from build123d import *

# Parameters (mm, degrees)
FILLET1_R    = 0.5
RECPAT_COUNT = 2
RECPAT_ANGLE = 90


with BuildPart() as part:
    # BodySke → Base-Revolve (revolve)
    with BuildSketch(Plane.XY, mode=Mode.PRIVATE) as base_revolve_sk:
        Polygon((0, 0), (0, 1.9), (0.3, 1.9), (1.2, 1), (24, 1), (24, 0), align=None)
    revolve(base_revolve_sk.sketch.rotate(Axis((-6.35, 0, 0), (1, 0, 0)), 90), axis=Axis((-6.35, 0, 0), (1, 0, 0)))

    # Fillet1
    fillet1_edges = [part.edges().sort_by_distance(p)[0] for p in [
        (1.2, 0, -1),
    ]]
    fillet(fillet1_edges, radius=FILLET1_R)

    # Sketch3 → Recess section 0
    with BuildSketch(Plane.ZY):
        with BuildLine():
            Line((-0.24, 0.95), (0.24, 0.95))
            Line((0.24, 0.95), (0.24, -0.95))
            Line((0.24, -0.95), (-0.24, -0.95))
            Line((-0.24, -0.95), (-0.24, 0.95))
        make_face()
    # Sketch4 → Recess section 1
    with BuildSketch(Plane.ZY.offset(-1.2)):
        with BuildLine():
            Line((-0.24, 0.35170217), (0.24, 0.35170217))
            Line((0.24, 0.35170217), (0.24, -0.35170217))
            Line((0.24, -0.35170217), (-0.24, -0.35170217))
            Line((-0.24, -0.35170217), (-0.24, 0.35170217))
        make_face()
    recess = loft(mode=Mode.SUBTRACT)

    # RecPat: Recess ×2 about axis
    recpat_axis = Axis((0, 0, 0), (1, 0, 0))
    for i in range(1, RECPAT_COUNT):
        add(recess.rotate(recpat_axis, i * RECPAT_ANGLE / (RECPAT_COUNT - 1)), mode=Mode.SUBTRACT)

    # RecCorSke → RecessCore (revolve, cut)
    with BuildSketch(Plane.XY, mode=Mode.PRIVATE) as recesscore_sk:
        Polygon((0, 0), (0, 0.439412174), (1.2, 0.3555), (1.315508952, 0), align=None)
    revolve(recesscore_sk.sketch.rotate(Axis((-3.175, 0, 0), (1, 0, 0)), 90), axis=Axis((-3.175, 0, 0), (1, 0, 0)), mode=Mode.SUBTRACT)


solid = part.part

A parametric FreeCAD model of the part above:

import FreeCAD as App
import Part
import Sketcher
Q = App.Units.Quantity


def edges_at(feature, points):
    """Names of the edges that pass closest to the given points."""
    edges = feature.Shape.Edges
    near = lambda p: min(range(len(edges)), key=lambda i: edges[i].distToShape(Part.Vertex(*p))[0])
    return sorted({f"Edge{near(p) + 1}" for p in points})

doc = App.newDocument("Part")
body = doc.addObject("PartDesign::Body", "Body")

# Sketch on XY plane
sketch1 = doc.addObject("Sketcher::SketchObject", "Sketch")
body.addObject(sketch1)
sketch1.AttachmentSupport = (doc.XY_Plane, [""])
sketch1.MapMode = "FlatFace"
sketch1.addGeometry([
    Part.LineSegment(App.Vector(0, 1.9, 0), App.Vector(0, 0, 0)),  # 0
    Part.LineSegment(App.Vector(0, 0, 0), App.Vector(24, 0, 0)),  # 1
    Part.LineSegment(App.Vector(24, 0, 0), App.Vector(24, 1, 0)),  # 2
    Part.LineSegment(App.Vector(24, 1, 0), App.Vector(1.2, 1, 0)),  # 3
    Part.LineSegment(App.Vector(1.2, 1, 0), App.Vector(0.3, 1.9, 0)),  # 4
    Part.LineSegment(App.Vector(0.3, 1.9, 0), App.Vector(0, 1.9, 0)),  # 5
], False)
sketch1.addConstraint([
    Sketcher.Constraint("Coincident", 0, 2, 1, 1),
    Sketcher.Constraint("Coincident", 1, 2, 2, 1),
    Sketcher.Constraint("Coincident", 2, 2, 3, 1),
    Sketcher.Constraint("Coincident", 3, 2, 4, 1),
    Sketcher.Constraint("Coincident", 4, 2, 5, 1),
    Sketcher.Constraint("Coincident", 5, 2, 0, 1),
    Sketcher.Constraint("Vertical", 0),
    Sketcher.Constraint("Horizontal", 1),
    Sketcher.Constraint("Vertical", 2),
    Sketcher.Constraint("Horizontal", 3),
    Sketcher.Constraint("Horizontal", 5),
    Sketcher.Constraint("Coincident", 0, 2, -1, 1),
    Sketcher.Constraint("DistanceX", 1, 1, 1, 2, 24.0),
    Sketcher.Constraint("DistanceY", 2, 1, 2, 2, 1.0),
    Sketcher.Constraint("Angle", 4, Q("135 deg")),
    Sketcher.Constraint("DistanceX", 3, 2, 3, 1, 22.8),
    Sketcher.Constraint("DistanceX", 5, 2, 5, 1, 0.3),
])
revolution = doc.addObject("PartDesign::Revolution", "Revolution")
body.addObject(revolution)
revolution.Profile = sketch1
revolution.ReferenceAxis = (sketch1, ["H_Axis"])
revolution.Angle = 360
doc.recompute()

fillet = doc.addObject("PartDesign::Fillet", "Fillet")
body.addObject(fillet)
fillet.Base = (revolution, edges_at(revolution, [(1.2, 0, -1)]))
fillet.Radius = 0.5

# Sketch on YZ plane
sketch2 = doc.addObject("Sketcher::SketchObject", "Sketch001")
body.addObject(sketch2)
sketch2.AttachmentSupport = (doc.YZ_Plane, [""])
sketch2.MapMode = "FlatFace"
sketch2.addGeometry([
    Part.LineSegment(App.Vector(0.95, 0.24, 0), App.Vector(0.95, -0.24, 0)),
    Part.LineSegment(App.Vector(0.95, -0.24, 0), App.Vector(-0.95, -0.24, 0)),
    Part.LineSegment(App.Vector(-0.95, -0.24, 0), App.Vector(-0.95, 0.24, 0)),
    Part.LineSegment(App.Vector(-0.95, 0.24, 0), App.Vector(0.95, 0.24, 0)),
], False)
sketch2.addConstraint([
    Sketcher.Constraint("Coincident", 0, 2, 1, 1),
    Sketcher.Constraint("Coincident", 1, 2, 2, 1),
    Sketcher.Constraint("Coincident", 2, 2, 3, 1),
    Sketcher.Constraint("Coincident", 3, 2, 0, 1),
    Sketcher.Constraint("Vertical", 0),
    Sketcher.Constraint("Horizontal", 1),
    Sketcher.Constraint("Vertical", 2),
    Sketcher.Constraint("Horizontal", 3),
    Sketcher.Constraint("Symmetric", 0, 2, 2, 2, -1, 1),
    Sketcher.Constraint("DistanceX", 1, 2, 1, 1, 1.9),
    Sketcher.Constraint("DistanceY", 0, 2, 0, 1, 0.48),
])

# Sketch on YZ plane
sketch3 = doc.addObject("Sketcher::SketchObject", "Sketch002")
body.addObject(sketch3)
sketch3.AttachmentSupport = (doc.YZ_Plane, [""])
sketch3.MapMode = "FlatFace"
sketch3.AttachmentOffset = App.Placement(App.Vector(0, 0, 1.2), App.Rotation())
sketch3.addGeometry([
    Part.LineSegment(App.Vector(0.35, 0.24, 0), App.Vector(0.35, -0.24, 0)),
    Part.LineSegment(App.Vector(0.35, -0.24, 0), App.Vector(-0.35, -0.24, 0)),
    Part.LineSegment(App.Vector(-0.35, -0.24, 0), App.Vector(-0.35, 0.24, 0)),
    Part.LineSegment(App.Vector(-0.35, 0.24, 0), App.Vector(0.35, 0.24, 0)),
], False)
sketch3.addConstraint([
    Sketcher.Constraint("Coincident", 0, 2, 1, 1),
    Sketcher.Constraint("Coincident", 1, 2, 2, 1),
    Sketcher.Constraint("Coincident", 2, 2, 3, 1),
    Sketcher.Constraint("Coincident", 3, 2, 0, 1),
    Sketcher.Constraint("Vertical", 0),
    Sketcher.Constraint("Horizontal", 1),
    Sketcher.Constraint("Vertical", 2),
    Sketcher.Constraint("Horizontal", 3),
    Sketcher.Constraint("Symmetric", 0, 2, 2, 2, -1, 1),
    Sketcher.Constraint("DistanceY", 0, 2, 0, 1, 0.48),
    Sketcher.Constraint("DistanceX", 1, 2, 1, 1, 0.703404),
])

subtractiveloft = doc.addObject("PartDesign::SubtractiveLoft", "SubtractiveLoft")
body.addObject(subtractiveloft)
subtractiveloft.Profile = sketch2
subtractiveloft.Sections = [sketch3]
doc.recompute()

polarpattern = doc.addObject("PartDesign::PolarPattern", "PolarPattern")
body.addObject(polarpattern)
polarpattern.Originals = [subtractiveloft]
polarpattern.Axis = (doc.X_Axis, [""])
polarpattern.Angle = 90
polarpattern.Occurrences = 2
body.Tip = polarpattern

# Sketch on XY plane
sketch4 = doc.addObject("Sketcher::SketchObject", "Sketch003")
body.addObject(sketch4)
sketch4.AttachmentSupport = (doc.XY_Plane, [""])
sketch4.MapMode = "FlatFace"
sketch4.addGeometry([
    Part.LineSegment(App.Vector(0, 0.44, 0), App.Vector(0, 0, 0)),
    Part.LineSegment(App.Vector(0, 0, 0), App.Vector(1.32, 0, 0)),
    Part.LineSegment(App.Vector(1.32, 0, 0), App.Vector(1.2, 0.36, 0)),
    Part.LineSegment(App.Vector(1.2, 0.36, 0), App.Vector(0, 0.44, 0)),
], False)
sketch4.addConstraint([
    Sketcher.Constraint("Coincident", 0, 2, 1, 1),
    Sketcher.Constraint("Coincident", 1, 2, 2, 1),
    Sketcher.Constraint("Coincident", 2, 2, 3, 1),
    Sketcher.Constraint("Coincident", 3, 2, 0, 1),
    Sketcher.Constraint("Vertical", 0),
    Sketcher.Constraint("Horizontal", 1),
    Sketcher.Constraint("Coincident", 0, 2, -1, 1),
    Sketcher.Constraint("Angle", 2, Q("108 deg")),
    Sketcher.Constraint("Angle", 3, Q("176 deg")),
    Sketcher.Constraint("DistanceX", -1, 1, 2, 2, 1.2),
    Sketcher.Constraint("DistanceX", 1, 1, 1, 2, 1.315509),
])
groove = doc.addObject("PartDesign::Groove", "Groove")
body.addObject(groove)
groove.Profile = sketch4
groove.ReferenceAxis = (sketch4, ["H_Axis"])
groove.Angle = 360

doc.recompute()
